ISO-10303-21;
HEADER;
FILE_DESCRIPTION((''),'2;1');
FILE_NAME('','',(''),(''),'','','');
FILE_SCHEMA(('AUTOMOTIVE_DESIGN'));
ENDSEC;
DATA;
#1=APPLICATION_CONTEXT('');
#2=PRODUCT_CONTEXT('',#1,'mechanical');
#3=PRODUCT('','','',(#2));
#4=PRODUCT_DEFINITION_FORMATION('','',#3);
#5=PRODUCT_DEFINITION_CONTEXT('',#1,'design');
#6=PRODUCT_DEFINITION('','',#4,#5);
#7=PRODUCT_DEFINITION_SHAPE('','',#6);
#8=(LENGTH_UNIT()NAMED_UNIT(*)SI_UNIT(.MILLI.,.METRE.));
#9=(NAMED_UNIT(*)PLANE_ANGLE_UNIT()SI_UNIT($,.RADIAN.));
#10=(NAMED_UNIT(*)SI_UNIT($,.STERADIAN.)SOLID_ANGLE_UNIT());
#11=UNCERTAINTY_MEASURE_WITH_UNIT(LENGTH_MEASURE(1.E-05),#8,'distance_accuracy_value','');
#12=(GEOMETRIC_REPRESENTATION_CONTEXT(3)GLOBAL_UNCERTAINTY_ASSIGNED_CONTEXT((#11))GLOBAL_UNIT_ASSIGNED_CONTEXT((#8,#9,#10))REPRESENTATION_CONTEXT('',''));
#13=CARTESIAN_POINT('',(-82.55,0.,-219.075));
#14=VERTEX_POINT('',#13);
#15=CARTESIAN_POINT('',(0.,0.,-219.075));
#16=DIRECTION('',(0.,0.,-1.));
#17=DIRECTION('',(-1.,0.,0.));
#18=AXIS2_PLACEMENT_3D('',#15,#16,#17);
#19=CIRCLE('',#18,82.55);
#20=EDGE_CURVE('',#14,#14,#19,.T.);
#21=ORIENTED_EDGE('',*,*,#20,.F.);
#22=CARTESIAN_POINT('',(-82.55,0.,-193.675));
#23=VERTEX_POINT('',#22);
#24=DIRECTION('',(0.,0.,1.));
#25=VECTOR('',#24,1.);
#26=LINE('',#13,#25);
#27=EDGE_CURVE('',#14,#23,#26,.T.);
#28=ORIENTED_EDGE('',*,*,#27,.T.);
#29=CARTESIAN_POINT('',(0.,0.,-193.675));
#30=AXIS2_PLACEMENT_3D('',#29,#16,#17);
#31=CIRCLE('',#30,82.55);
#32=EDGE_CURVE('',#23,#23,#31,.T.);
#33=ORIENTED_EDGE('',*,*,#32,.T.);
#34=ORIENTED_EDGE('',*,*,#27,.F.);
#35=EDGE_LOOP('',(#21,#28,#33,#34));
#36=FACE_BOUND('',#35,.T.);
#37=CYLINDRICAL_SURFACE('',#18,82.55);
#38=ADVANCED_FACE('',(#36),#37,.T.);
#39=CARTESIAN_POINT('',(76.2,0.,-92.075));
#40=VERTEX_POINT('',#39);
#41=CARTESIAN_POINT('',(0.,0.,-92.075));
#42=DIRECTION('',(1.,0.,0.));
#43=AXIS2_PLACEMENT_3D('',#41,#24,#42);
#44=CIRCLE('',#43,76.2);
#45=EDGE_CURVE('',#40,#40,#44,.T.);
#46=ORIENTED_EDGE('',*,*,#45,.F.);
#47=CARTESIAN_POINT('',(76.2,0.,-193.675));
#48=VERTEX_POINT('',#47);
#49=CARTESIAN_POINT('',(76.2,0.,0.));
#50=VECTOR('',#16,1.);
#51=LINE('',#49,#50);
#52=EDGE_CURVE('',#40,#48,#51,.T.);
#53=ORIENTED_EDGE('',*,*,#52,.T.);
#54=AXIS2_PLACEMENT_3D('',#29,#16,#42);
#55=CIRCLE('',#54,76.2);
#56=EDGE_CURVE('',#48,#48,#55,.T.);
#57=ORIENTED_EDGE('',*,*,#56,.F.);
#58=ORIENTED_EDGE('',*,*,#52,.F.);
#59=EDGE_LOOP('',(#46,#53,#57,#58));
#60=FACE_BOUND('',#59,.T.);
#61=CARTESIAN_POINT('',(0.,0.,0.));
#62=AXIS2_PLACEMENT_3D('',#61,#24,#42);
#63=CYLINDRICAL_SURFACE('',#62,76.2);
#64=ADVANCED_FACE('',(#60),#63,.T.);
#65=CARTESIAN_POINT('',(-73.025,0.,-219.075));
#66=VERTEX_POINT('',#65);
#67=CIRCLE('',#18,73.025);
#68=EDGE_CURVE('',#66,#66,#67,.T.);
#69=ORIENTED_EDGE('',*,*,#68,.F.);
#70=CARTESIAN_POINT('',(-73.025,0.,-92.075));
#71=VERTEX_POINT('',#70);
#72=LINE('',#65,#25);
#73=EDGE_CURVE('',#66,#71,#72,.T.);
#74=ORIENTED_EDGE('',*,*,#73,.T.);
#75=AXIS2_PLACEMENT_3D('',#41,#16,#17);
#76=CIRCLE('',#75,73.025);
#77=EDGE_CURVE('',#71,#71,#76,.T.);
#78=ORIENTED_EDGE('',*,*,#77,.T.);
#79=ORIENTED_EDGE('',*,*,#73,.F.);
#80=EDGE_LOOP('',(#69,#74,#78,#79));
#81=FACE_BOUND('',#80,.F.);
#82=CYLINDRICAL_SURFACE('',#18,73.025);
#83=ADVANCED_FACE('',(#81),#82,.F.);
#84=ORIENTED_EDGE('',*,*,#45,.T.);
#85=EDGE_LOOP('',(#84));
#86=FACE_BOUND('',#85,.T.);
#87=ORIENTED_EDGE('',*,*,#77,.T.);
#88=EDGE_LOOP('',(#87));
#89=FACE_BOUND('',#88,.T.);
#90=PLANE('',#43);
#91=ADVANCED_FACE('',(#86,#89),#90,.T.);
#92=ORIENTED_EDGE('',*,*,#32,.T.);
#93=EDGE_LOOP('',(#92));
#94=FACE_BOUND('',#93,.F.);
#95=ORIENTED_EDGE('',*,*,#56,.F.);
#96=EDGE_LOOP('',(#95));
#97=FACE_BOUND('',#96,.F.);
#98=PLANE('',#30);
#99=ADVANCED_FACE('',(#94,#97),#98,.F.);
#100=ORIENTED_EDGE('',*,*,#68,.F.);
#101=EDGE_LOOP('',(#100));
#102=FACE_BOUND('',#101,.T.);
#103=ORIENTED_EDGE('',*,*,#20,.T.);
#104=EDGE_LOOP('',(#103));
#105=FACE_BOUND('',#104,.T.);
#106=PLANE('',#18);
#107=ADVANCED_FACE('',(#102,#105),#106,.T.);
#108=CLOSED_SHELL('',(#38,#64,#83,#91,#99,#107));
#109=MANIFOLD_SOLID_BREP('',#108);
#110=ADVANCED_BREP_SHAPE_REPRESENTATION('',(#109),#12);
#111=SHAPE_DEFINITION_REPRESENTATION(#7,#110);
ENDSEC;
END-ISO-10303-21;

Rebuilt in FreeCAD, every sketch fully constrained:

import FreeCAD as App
import Part
import Sketcher
from FreeCAD import Vector
Q = App.Units.Quantity

doc = App.newDocument("Part")
body = doc.addObject("PartDesign::Body", "Body")

# Sketch on XY plane
sketch1 = body.newObject("Sketcher::SketchObject", "Sketch")
sketch1.AttachmentSupport = (doc.getObject("XY_Plane"), [""])
sketch1.MapMode = "FlatFace"
sketch1.addGeometry(Part.Circle(Vector(0, 0, 0), Vector(0, 0, 1), 76), False)
sketch1.addConstraint(Sketcher.Constraint("Coincident", 0, 3, -1, 1))
sketch1.addConstraint(Sketcher.Constraint("Diameter", 0, Q("6 in")))
pad1 = body.newObject("PartDesign::Pad", "Pad")
pad1.Profile = sketch1
pad1.Length = Q("17.25 in")
pad1.Midplane = True

# Sketch on XY plane
sketch2 = body.newObject("Sketcher::SketchObject", "Sketch001")
sketch2.AttachmentSupport = (doc.getObject("XY_Plane"), [""])
sketch2.MapMode = "FlatFace"
sketch2.AttachmentOffset = App.Placement(Vector(0, 0, -8.625 * 25.4), App.Rotation())
sketch2.addGeometry(Part.Circle(Vector(0, 0, 0), Vector(0, 0, 1), 73), False)
sketch2.addConstraint(Sketcher.Constraint("Coincident", 0, 3, -1, 1))
sketch2.addConstraint(Sketcher.Constraint("Diameter", 0, Q("5.75 in")))
pocket1 = body.newObject("PartDesign::Pocket", "Pocket")
pocket1.Profile = sketch2
pocket1.Length = Q("16 in")
pocket1.Reversed = True

# Sketch on XY plane
sketch3 = body.newObject("Sketcher::SketchObject", "Sketch002")
sketch3.AttachmentSupport = (doc.getObject("XY_Plane"), [""])
sketch3.MapMode = "FlatFace"
sketch3.AttachmentOffset = App.Placement(Vector(0, 0, 8.625 * 25.4), App.Rotation())
sketch3.addGeometry(Part.Circle(Vector(0, 0, 0), Vector(0, 0, 1), 83), False)
sketch3.addGeometry(Part.Circle(Vector(0, 0, 0), Vector(0, 0, 1), 76), False)
sketch3.addConstraint(Sketcher.Constraint("Coincident", 0, 3, -1, 1))
sketch3.addConstraint(Sketcher.Constraint("Coincident", 1, 3, -1, 1))
sketch3.addConstraint(Sketcher.Constraint("Diameter", 0, Q("6.5 in")))
sketch3.addConstraint(Sketcher.Constraint("Diameter", 1, Q("6 in")))
pad2 = body.newObject("PartDesign::Pad", "Pad001")
pad2.Profile = sketch3
pad2.Length = Q("1 in")
pad2.Reversed = True

# Sketch on XY plane
sketch4 = body.newObject("Sketcher::SketchObject", "Sketch003")
sketch4.AttachmentSupport = (doc.getObject("XY_Plane"), [""])
sketch4.MapMode = "FlatFace"
sketch4.AttachmentOffset = App.Placement(Vector(0, 0, -8.625 * 25.4), App.Rotation())
sketch4.addGeometry(Part.Circle(Vector(0, 0, 0), Vector(0, 0, 1), 83), False)
sketch4.addGeometry(Part.Circle(Vector(0, 0, 0), Vector(0, 0, 1), 76), False)
sketch4.addConstraint(Sketcher.Constraint("Coincident", 0, 3, -1, 1))
sketch4.addConstraint(Sketcher.Constraint("Coincident", 1, 3, -1, 1))
sketch4.addConstraint(Sketcher.Constraint("Diameter", 1, Q("6 in")))
sketch4.addConstraint(Sketcher.Constraint("Diameter", 0, Q("6.5 in")))
pad3 = body.newObject("PartDesign::Pad", "Pad002")
pad3.Profile = sketch4
pad3.Length = Q("1 in")

# Sketch on XY plane
sketch5 = body.newObject("Sketcher::SketchObject", "Sketch004")
sketch5.AttachmentSupport = (doc.getObject("XY_Plane"), [""])
sketch5.MapMode = "FlatFace"
sketch5.AttachmentOffset = App.Placement(Vector(0, 0, 8.625 * 25.4), App.Rotation())
sketch5.addGeometry(Part.Circle(Vector(0, 0, 0), Vector(0, 0, 1), 83), False)
sketch5.addConstraint(Sketcher.Constraint("Coincident", 0, 3, -1, 1))
sketch5.addConstraint(Sketcher.Constraint("Diameter", 0, Q("6.5 in")))
pocket2 = body.newObject("PartDesign::Pocket", "Pocket001")
pocket2.Profile = sketch5
pocket2.Length = Q("12.25 in")

doc.recompute()
